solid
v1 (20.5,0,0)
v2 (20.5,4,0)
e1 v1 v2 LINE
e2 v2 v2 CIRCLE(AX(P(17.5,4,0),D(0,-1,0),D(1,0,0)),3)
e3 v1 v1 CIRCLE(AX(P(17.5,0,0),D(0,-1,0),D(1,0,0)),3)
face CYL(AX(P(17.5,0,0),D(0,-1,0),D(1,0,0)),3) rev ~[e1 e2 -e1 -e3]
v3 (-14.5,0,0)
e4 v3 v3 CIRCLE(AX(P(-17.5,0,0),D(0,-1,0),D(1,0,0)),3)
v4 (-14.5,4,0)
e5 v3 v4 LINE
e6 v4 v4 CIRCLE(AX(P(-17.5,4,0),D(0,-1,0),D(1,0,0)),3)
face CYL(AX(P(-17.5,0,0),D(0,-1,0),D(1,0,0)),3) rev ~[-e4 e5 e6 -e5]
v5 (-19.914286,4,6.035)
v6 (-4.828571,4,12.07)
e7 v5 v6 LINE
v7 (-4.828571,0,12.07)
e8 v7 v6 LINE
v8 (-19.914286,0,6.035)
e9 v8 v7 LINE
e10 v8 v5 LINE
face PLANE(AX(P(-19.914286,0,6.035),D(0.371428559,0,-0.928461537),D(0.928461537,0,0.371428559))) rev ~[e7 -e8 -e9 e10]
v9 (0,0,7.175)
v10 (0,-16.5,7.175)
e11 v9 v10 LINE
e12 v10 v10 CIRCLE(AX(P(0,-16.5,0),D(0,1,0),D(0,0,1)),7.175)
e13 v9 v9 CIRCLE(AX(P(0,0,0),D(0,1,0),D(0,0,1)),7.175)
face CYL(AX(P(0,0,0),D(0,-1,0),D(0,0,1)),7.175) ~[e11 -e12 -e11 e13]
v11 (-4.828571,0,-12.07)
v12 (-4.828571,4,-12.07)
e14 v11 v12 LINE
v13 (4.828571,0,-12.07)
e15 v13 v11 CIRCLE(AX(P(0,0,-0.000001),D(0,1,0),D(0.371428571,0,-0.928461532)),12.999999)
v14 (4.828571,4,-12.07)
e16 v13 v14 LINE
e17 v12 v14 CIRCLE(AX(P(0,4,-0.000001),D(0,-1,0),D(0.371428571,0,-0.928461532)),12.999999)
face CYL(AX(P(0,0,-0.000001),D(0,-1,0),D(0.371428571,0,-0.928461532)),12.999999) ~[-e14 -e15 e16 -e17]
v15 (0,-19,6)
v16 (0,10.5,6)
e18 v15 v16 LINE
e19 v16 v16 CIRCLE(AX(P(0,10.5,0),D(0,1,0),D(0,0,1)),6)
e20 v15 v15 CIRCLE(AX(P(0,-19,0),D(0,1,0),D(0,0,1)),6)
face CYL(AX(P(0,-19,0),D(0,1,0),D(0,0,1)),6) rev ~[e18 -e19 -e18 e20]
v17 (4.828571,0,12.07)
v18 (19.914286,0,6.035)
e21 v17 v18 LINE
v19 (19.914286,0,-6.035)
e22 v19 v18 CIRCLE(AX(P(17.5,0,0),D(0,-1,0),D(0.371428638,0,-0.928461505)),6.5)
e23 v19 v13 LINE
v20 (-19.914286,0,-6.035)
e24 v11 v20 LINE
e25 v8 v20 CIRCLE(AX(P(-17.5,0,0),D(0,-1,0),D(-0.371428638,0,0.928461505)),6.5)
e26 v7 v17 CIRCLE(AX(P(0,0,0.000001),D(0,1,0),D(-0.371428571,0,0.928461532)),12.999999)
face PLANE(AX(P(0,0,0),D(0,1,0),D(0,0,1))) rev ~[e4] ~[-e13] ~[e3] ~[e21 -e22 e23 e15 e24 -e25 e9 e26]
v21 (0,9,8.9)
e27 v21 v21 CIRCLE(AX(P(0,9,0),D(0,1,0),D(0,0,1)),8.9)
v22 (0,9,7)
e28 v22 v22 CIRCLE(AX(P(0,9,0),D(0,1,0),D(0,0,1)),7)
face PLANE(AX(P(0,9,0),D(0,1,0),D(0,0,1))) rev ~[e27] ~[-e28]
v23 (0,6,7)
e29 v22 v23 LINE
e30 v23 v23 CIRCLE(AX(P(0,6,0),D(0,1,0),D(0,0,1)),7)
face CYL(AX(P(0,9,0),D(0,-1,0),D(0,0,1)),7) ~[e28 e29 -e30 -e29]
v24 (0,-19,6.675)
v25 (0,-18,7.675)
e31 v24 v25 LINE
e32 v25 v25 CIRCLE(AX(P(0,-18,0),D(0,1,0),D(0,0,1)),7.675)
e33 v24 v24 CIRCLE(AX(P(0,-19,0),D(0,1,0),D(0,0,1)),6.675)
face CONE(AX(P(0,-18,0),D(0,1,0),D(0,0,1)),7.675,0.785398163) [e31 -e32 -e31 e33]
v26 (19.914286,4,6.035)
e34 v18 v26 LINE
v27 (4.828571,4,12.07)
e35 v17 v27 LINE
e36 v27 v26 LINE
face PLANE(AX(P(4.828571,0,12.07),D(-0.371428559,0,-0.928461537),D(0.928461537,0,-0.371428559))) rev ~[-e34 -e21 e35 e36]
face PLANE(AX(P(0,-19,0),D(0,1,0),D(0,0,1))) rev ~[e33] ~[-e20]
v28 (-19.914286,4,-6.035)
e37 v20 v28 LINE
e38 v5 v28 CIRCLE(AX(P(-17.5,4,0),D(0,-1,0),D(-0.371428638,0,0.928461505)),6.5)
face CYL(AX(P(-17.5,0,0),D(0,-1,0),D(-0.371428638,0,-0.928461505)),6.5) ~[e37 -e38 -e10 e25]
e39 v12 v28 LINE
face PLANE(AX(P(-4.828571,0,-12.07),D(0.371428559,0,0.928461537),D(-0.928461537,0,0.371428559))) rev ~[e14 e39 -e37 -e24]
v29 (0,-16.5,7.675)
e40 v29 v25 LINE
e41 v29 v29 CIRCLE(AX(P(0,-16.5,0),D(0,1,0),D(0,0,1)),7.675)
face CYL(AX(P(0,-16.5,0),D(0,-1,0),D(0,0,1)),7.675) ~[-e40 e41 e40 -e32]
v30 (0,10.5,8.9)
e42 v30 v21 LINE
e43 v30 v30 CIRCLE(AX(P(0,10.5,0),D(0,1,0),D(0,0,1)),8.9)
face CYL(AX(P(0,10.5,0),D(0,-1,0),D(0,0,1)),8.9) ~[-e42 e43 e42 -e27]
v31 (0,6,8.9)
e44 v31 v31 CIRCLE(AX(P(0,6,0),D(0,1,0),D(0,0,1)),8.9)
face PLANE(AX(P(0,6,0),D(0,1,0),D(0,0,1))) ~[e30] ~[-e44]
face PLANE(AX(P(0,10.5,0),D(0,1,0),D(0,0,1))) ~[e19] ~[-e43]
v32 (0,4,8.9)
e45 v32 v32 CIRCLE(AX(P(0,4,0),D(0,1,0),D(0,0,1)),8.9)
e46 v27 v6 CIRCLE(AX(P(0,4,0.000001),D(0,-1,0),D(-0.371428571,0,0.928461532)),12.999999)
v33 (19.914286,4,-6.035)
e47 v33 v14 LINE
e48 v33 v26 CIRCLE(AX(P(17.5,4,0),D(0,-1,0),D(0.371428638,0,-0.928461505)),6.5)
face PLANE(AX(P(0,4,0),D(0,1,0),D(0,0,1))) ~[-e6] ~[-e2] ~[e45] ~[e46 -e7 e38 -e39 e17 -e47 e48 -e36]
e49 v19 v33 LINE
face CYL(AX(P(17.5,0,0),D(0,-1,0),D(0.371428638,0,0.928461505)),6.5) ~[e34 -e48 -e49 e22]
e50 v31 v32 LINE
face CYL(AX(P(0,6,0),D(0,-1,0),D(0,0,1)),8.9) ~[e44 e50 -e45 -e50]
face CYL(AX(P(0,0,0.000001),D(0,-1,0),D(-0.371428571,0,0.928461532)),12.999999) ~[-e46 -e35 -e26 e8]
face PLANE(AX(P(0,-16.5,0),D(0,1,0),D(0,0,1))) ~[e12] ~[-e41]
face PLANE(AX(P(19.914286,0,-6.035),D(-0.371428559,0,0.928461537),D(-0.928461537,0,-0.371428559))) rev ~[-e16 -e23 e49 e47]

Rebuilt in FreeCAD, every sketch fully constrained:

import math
import FreeCAD as App
import Part
import Sketcher


def edges_at(feature, points):
    """Names of the edges that pass closest to the given points."""
    edges = feature.Shape.Edges
    near = lambda p: min(range(len(edges)), key=lambda i: edges[i].distToShape(Part.Vertex(*p))[0])
    return sorted({f"Edge{near(p) + 1}" for p in points})


def add_polygon(sketch, points):
    """Adds a closed chain of lines whose ends are joined by coincident constraints."""
    first, n = sketch.GeometryCount, len(points)
    for a, b in zip(points, points[1:] + points[:1]):
        sketch.addGeometry(Part.LineSegment(App.Vector(*a, 0), App.Vector(*b, 0)), False)
    for i in range(n):
        sketch.addConstraint(Sketcher.Constraint("Coincident", first + i, 2, first + (i + 1) % n, 1))

doc = App.newDocument("Part")
params = doc.addObject("Spreadsheet::Sheet", "Params")
for row, (alias, value) in enumerate([
    ("sketch1_width", "3 mm"),
    ("sketch1_width2", "2 mm"),
    ("sketch1_width3", "4 mm"),
    ("sketch1_width4", "29.5 mm"),
    ("sketch1_width5", "1.5 mm"),
    ("revolution_angle", "360 deg"),
    ("chamfer_size", "1 mm"),
    ("sketch2_diameter", "60 mm"),
    ("sketch2_radius", "12.999999 mm"),
    ("sketch2_radius2", "6.5 mm"),
    ("pocket1_length", "25 mm"),
    ("sketch3_diameter", "6 mm"),
    ("pocket2_length", "25 mm"),
], start=1):
    params.set(f"A{row}", alias)
    params.set(f"B{row}", "=" + value)
    params.setAlias(f"B{row}", alias)

body = doc.addObject("PartDesign::Body", "Body")

# Sketch on YZ plane
sketch1 = body.newObject("Sketcher::SketchObject", "Sketch")
sketch1.AttachmentSupport = (doc.getObject("YZ_Plane"), [""])
sketch1.MapMode = "FlatFace"
add_polygon(sketch1, [(-19, 7.675), (-19, 6), (10.5, 6), (10.5, 8.9), (9, 8.9), (9, 7), (6, 7), (6, 8.9), (4, 8.9), (4, 24), (0, 24), (0, 7.175), (-16.5, 7.175), (-16.5, 7.675)])  # lines 0-13
sketch1.addConstraint(Sketcher.Constraint("Vertical", 0))
sketch1.addConstraint(Sketcher.Constraint("Horizontal", 1))
sketch1.addConstraint(Sketcher.Constraint("Vertical", 2))
sketch1.addConstraint(Sketcher.Constraint("Horizontal", 3))
sketch1.addConstraint(Sketcher.Constraint("Vertical", 4))
sketch1.addConstraint(Sketcher.Constraint("Horizontal", 5))
sketch1.addConstraint(Sketcher.Constraint("Vertical", 6))
sketch1.addConstraint(Sketcher.Constraint("Horizontal", 7))
sketch1.addConstraint(Sketcher.Constraint("Vertical", 8))
sketch1.addConstraint(Sketcher.Constraint("Horizontal", 9))
sketch1.addConstraint(Sketcher.Constraint("Vertical", 10))
sketch1.addConstraint(Sketcher.Constraint("Horizontal", 11))
sketch1.addConstraint(Sketcher.Constraint("Vertical", 12))
sketch1.addConstraint(Sketcher.Constraint("Horizontal", 13))
sketch1.addConstraint(Sketcher.Constraint("PointOnObject", 9, 2, -2))
sketch1.addConstraint(Sketcher.Constraint("Horizontal", 3, 2, 6, 2))
sketch1.addConstraint(Sketcher.Constraint("DistanceX", 5, 2, 5, 1, 3.0))
sketch1.addConstraint(Sketcher.Constraint("DistanceX", 7, 2, 7, 1, 2.0))
sketch1.addConstraint(Sketcher.Constraint("DistanceX", 9, 2, 9, 1, 4.0))
sketch1.addConstraint(Sketcher.Constraint("DistanceX", 1, 1, 1, 2, 29.5))
sketch1.addConstraint(Sketcher.Constraint("DistanceX", 3, 2, 3, 1, 1.5))
sketch1.addConstraint(Sketcher.Constraint("DistanceX", 11, 2, 11, 1, 16.5))
sketch1.addConstraint(Sketcher.Constraint("DistanceY", 2, 1, 2, 2, 2.9))
sketch1.addConstraint(Sketcher.Constraint("DistanceY", 4, 2, 4, 1, 1.9))
sketch1.addConstraint(Sketcher.Constraint("DistanceY", 8, 1, 8, 2, 15.1))
sketch1.addConstraint(Sketcher.Constraint("DistanceY", 12, 1, 12, 2, 0.5))
sketch1.addConstraint(Sketcher.Constraint("DistanceY", -1, 1, 0, 2, 6.0))
sketch1.addConstraint(Sketcher.Constraint("DistanceY", 0, 2, 0, 1, 1.675))
sketch1.setExpression("Constraints[30]", "Params.sketch1_width")
sketch1.setExpression("Constraints[31]", "Params.sketch1_width2")
sketch1.setExpression("Constraints[32]", "Params.sketch1_width3")
sketch1.setExpression("Constraints[33]", "Params.sketch1_width4")
sketch1.setExpression("Constraints[34]", "Params.sketch1_width5")
revolution = body.newObject("PartDesign::Revolution", "Revolution")
revolution.Profile = sketch1
revolution.ReferenceAxis = (sketch1, ["H_Axis"])
revolution.setExpression("Angle", "Params.revolution_angle")
doc.recompute()

chamfer = body.newObject("PartDesign::Chamfer", "Chamfer")
chamfer.Base = (revolution, edges_at(revolution, [(0, -19, -7.675)]))
chamfer.setExpression("Size", "Params.chamfer_size")

# Sketch on XZ plane
sketch2 = body.newObject("Sketcher::SketchObject", "Sketch001")
sketch2.AttachmentSupport = (doc.getObject("XZ_Plane"), [""])
sketch2.MapMode = "FlatFace"
sketch2.addGeometry(Part.Circle(App.Vector(0, 0, 0), App.Vector(0, 0, 1), 30), False)
sketch2.addGeometry(Part.LineSegment(App.Vector(-4.828571, -12.07, 0), App.Vector(-19.914286, -6.035, 0)), False)
sketch2.addGeometry(Part.ArcOfCircle(Part.Circle(App.Vector(-17.5, 0, 0), App.Vector(0, 0, 1), 6.5), math.radians(111.803752), math.radians(248.196248)), False)
sketch2.addGeometry(Part.LineSegment(App.Vector(-19.914286, 6.035, 0), App.Vector(-4.828571, 12.07, 0)), False)
sketch2.addGeometry(Part.ArcOfCircle(Part.Circle(App.Vector(0, 0.000001, 0), App.Vector(0, 0, 1), 12.999999), math.radians(68.196252), math.radians(111.803748)), False)
sketch2.addGeometry(Part.LineSegment(App.Vector(4.828571, 12.07, 0), App.Vector(19.914286, 6.035, 0)), False)
sketch2.addGeometry(Part.ArcOfCircle(Part.Circle(App.Vector(17.5, 0, 0), App.Vector(0, 0, 1), 6.5), math.radians(-68.196248), math.radians(68.196248)), False)
sketch2.addGeometry(Part.LineSegment(App.Vector(19.914286, -6.035, 0), App.Vector(4.828571, -12.07, 0)), False)
sketch2.addGeometry(Part.ArcOfCircle(Part.Circle(App.Vector(0, -0.000001, 0), App.Vector(0, 0, 1), 12.999999), math.radians(-111.803748), math.radians(-68.196252)), False)
sketch2.addConstraint(Sketcher.Constraint("Tangent", 1, 2, 2, 2))
sketch2.addConstraint(Sketcher.Constraint("Tangent", 2, 1, 3, 1))
sketch2.addConstraint(Sketcher.Constraint("Tangent", 3, 2, 4, 2))
sketch2.addConstraint(Sketcher.Constraint("Tangent", 4, 1, 5, 1))
sketch2.addConstraint(Sketcher.Constraint("Tangent", 5, 2, 6, 2))
sketch2.addConstraint(Sketcher.Constraint("Tangent", 6, 1, 7, 1))
sketch2.addConstraint(Sketcher.Constraint("Tangent", 7, 2, 8, 2))
sketch2.addConstraint(Sketcher.Constraint("Tangent", 8, 1, 1, 1))
sketch2.addConstraint(Sketcher.Constraint("Coincident", 0, 3, -1, 1))
sketch2.addConstraint(Sketcher.Constraint("Coincident", 4, 3, -1, 1))
sketch2.addConstraint(Sketcher.Constraint("Coincident", 8, 3, -1, 1))
sketch2.addConstraint(Sketcher.Constraint("Equal", 2, 6))
sketch2.addConstraint(Sketcher.Constraint("Equal", 4, 8))
sketch2.addConstraint(Sketcher.Constraint("Symmetric", 2, 3, 6, 3, -1, 1))
sketch2.addConstraint(Sketcher.Constraint("PointOnObject", 2, 3, -1))
sketch2.addConstraint(Sketcher.Constraint("Diameter", 0, 60.0))
sketch2.addConstraint(Sketcher.Constraint("Radius", 4, 12.999999))
sketch2.addConstraint(Sketcher.Constraint("Radius", 2, 6.5))
sketch2.addConstraint(Sketcher.Constraint("DistanceX", 2, 3, 6, 3, 35.0))
sketch2.setExpression("Constraints[15]", "Params.sketch2_diameter")
sketch2.setExpression("Constraints[16]", "Params.sketch2_radius")
sketch2.setExpression("Constraints[17]", "Params.sketch2_radius2")
pocket1 = body.newObject("PartDesign::Pocket", "Pocket")
pocket1.Profile = sketch2
pocket1.setExpression("Length", "Params.pocket1_length")

# Sketch on XZ plane
sketch3 = body.newObject("Sketcher::SketchObject", "Sketch002")
sketch3.AttachmentSupport = (doc.getObject("XZ_Plane"), [""])
sketch3.MapMode = "FlatFace"
sketch3.addGeometry(Part.Circle(App.Vector(17.5, 0, 0), App.Vector(0, 0, 1), 3), False)
sketch3.addGeometry(Part.Circle(App.Vector(-17.5, 0, 0), App.Vector(0, 0, 1), 3), False)
sketch3.addConstraint(Sketcher.Constraint("Equal", 0, 1))
sketch3.addConstraint(Sketcher.Constraint("Symmetric", 0, 3, 1, 3, -1, 1))
sketch3.addConstraint(Sketcher.Constraint("PointOnObject", 0, 3, -1))
sketch3.addConstraint(Sketcher.Constraint("Diameter", 0, 6.0))
sketch3.addConstraint(Sketcher.Constraint("DistanceX", 1, 3, 0, 3, 35.0))
sketch3.setExpression("Constraints[3]", "Params.sketch3_diameter")
pocket2 = body.newObject("PartDesign::Pocket", "Pocket001")
pocket2.Profile = sketch3
pocket2.setExpression("Length", "Params.pocket2_length")

doc.recompute()
